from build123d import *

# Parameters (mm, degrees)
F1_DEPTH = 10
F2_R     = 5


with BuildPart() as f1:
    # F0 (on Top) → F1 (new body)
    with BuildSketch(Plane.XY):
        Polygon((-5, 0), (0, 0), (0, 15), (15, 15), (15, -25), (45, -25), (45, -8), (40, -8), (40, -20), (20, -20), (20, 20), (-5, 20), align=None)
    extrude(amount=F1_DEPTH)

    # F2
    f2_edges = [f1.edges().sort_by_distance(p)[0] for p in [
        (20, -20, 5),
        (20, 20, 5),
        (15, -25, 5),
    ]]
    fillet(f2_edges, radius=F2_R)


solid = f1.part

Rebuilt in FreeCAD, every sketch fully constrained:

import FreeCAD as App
import Part
import Sketcher


def edges_at(feature, points):
    """Names of the edges that pass closest to the given points."""
    edges = feature.Shape.Edges
    near = lambda p: min(range(len(edges)), key=lambda i: edges[i].distToShape(Part.Vertex(*p))[0])
    return sorted({f"Edge{near(p) + 1}" for p in points})


def add_polygon(sketch, points):
    """Adds a closed chain of lines whose ends are joined by coincident constraints."""
    first, n = sketch.GeometryCount, len(points)
    for a, b in zip(points, points[1:] + points[:1]):
        sketch.addGeometry(Part.LineSegment(App.Vector(*a, 0), App.Vector(*b, 0)), False)
    for i in range(n):
        sketch.addConstraint(Sketcher.Constraint("Coincident", first + i, 2, first + (i + 1) % n, 1))

doc = App.newDocument("Part")
params = doc.addObject("Spreadsheet::Sheet", "Params")
for row, (alias, value) in enumerate([
    ("sketch1_width", "5 mm"),
    ("sketch1_width2", "15 mm"),
    ("sketch1_width3", "30 mm"),
    ("sketch1_width4", "20 mm"),
    ("sketch1_height", "40 mm"),
    ("pad1_length", "10 mm"),
    ("fillet_radius", "5 mm"),
], start=1):
    params.set(f"A{row}", alias)
    params.set(f"B{row}", "=" + value)
    params.setAlias(f"B{row}", alias)

body = doc.addObject("PartDesign::Body", "Body")

# Sketch on XY plane
sketch1 = body.newObject("Sketcher::SketchObject", "Sketch")
sketch1.AttachmentSupport = (doc.getObject("XY_Plane"), [""])
sketch1.MapMode = "FlatFace"
add_polygon(sketch1, [(-5, 0), (0, 0), (0, 15), (15, 15), (15, -25), (45, -25), (45, -8), (40, -8), (40, -20), (20, -20), (20, 20), (-5, 20)])  # lines 0-11
sketch1.addConstraint([
    Sketcher.Constraint("Horizontal", 0),
    Sketcher.Constraint("Vertical", 1),
    Sketcher.Constraint("Horizontal", 2),
    Sketcher.Constraint("Vertical", 3),
    Sketcher.Constraint("Horizontal", 4),
    Sketcher.Constraint("Vertical", 5),
    Sketcher.Constraint("Horizontal", 6),
    Sketcher.Constraint("Vertical", 7),
    Sketcher.Constraint("Horizontal", 8),
    Sketcher.Constraint("Vertical", 9),
    Sketcher.Constraint("Horizontal", 10),
    Sketcher.Constraint("Vertical", 11),
    Sketcher.Constraint("Coincident", 0, 2, -1, 1),
    Sketcher.Constraint("Equal", 0, 6),
    Sketcher.Constraint("Equal", 2, 1),
    Sketcher.Constraint("Equal", 3, 9),
    Sketcher.Constraint("Equal", 8, 11),
    Sketcher.Constraint("DistanceX", 0, 1, 0, 2, 5.0),
    Sketcher.Constraint("DistanceX", 2, 1, 2, 2, 15.0),
    Sketcher.Constraint("DistanceX", 4, 1, 4, 2, 30.0),
    Sketcher.Constraint("DistanceX", 8, 2, 8, 1, 20.0),
    Sketcher.Constraint("DistanceY", 3, 2, 3, 1, 40.0),
    Sketcher.Constraint("DistanceY", 5, 1, 5, 2, 17.0),
])
sketch1.setExpression("Constraints[29]", "Params.sketch1_width")
sketch1.setExpression("Constraints[30]", "Params.sketch1_width2")
sketch1.setExpression("Constraints[31]", "Params.sketch1_width3")
sketch1.setExpression("Constraints[32]", "Params.sketch1_width4")
sketch1.setExpression("Constraints[33]", "Params.sketch1_height")
pad1 = body.newObject("PartDesign::Pad", "Pad")
pad1.Profile = sketch1
pad1.setExpression("Length", "Params.pad1_length")
doc.recompute()

fillet = body.newObject("PartDesign::Fillet", "Fillet")
fillet.Base = (pad1, edges_at(pad1, [(20, -20, 5), (20, 20, 5), (15, -25, 5)]))
fillet.setExpression("Radius", "Params.fillet_radius")

doc.recompute()
